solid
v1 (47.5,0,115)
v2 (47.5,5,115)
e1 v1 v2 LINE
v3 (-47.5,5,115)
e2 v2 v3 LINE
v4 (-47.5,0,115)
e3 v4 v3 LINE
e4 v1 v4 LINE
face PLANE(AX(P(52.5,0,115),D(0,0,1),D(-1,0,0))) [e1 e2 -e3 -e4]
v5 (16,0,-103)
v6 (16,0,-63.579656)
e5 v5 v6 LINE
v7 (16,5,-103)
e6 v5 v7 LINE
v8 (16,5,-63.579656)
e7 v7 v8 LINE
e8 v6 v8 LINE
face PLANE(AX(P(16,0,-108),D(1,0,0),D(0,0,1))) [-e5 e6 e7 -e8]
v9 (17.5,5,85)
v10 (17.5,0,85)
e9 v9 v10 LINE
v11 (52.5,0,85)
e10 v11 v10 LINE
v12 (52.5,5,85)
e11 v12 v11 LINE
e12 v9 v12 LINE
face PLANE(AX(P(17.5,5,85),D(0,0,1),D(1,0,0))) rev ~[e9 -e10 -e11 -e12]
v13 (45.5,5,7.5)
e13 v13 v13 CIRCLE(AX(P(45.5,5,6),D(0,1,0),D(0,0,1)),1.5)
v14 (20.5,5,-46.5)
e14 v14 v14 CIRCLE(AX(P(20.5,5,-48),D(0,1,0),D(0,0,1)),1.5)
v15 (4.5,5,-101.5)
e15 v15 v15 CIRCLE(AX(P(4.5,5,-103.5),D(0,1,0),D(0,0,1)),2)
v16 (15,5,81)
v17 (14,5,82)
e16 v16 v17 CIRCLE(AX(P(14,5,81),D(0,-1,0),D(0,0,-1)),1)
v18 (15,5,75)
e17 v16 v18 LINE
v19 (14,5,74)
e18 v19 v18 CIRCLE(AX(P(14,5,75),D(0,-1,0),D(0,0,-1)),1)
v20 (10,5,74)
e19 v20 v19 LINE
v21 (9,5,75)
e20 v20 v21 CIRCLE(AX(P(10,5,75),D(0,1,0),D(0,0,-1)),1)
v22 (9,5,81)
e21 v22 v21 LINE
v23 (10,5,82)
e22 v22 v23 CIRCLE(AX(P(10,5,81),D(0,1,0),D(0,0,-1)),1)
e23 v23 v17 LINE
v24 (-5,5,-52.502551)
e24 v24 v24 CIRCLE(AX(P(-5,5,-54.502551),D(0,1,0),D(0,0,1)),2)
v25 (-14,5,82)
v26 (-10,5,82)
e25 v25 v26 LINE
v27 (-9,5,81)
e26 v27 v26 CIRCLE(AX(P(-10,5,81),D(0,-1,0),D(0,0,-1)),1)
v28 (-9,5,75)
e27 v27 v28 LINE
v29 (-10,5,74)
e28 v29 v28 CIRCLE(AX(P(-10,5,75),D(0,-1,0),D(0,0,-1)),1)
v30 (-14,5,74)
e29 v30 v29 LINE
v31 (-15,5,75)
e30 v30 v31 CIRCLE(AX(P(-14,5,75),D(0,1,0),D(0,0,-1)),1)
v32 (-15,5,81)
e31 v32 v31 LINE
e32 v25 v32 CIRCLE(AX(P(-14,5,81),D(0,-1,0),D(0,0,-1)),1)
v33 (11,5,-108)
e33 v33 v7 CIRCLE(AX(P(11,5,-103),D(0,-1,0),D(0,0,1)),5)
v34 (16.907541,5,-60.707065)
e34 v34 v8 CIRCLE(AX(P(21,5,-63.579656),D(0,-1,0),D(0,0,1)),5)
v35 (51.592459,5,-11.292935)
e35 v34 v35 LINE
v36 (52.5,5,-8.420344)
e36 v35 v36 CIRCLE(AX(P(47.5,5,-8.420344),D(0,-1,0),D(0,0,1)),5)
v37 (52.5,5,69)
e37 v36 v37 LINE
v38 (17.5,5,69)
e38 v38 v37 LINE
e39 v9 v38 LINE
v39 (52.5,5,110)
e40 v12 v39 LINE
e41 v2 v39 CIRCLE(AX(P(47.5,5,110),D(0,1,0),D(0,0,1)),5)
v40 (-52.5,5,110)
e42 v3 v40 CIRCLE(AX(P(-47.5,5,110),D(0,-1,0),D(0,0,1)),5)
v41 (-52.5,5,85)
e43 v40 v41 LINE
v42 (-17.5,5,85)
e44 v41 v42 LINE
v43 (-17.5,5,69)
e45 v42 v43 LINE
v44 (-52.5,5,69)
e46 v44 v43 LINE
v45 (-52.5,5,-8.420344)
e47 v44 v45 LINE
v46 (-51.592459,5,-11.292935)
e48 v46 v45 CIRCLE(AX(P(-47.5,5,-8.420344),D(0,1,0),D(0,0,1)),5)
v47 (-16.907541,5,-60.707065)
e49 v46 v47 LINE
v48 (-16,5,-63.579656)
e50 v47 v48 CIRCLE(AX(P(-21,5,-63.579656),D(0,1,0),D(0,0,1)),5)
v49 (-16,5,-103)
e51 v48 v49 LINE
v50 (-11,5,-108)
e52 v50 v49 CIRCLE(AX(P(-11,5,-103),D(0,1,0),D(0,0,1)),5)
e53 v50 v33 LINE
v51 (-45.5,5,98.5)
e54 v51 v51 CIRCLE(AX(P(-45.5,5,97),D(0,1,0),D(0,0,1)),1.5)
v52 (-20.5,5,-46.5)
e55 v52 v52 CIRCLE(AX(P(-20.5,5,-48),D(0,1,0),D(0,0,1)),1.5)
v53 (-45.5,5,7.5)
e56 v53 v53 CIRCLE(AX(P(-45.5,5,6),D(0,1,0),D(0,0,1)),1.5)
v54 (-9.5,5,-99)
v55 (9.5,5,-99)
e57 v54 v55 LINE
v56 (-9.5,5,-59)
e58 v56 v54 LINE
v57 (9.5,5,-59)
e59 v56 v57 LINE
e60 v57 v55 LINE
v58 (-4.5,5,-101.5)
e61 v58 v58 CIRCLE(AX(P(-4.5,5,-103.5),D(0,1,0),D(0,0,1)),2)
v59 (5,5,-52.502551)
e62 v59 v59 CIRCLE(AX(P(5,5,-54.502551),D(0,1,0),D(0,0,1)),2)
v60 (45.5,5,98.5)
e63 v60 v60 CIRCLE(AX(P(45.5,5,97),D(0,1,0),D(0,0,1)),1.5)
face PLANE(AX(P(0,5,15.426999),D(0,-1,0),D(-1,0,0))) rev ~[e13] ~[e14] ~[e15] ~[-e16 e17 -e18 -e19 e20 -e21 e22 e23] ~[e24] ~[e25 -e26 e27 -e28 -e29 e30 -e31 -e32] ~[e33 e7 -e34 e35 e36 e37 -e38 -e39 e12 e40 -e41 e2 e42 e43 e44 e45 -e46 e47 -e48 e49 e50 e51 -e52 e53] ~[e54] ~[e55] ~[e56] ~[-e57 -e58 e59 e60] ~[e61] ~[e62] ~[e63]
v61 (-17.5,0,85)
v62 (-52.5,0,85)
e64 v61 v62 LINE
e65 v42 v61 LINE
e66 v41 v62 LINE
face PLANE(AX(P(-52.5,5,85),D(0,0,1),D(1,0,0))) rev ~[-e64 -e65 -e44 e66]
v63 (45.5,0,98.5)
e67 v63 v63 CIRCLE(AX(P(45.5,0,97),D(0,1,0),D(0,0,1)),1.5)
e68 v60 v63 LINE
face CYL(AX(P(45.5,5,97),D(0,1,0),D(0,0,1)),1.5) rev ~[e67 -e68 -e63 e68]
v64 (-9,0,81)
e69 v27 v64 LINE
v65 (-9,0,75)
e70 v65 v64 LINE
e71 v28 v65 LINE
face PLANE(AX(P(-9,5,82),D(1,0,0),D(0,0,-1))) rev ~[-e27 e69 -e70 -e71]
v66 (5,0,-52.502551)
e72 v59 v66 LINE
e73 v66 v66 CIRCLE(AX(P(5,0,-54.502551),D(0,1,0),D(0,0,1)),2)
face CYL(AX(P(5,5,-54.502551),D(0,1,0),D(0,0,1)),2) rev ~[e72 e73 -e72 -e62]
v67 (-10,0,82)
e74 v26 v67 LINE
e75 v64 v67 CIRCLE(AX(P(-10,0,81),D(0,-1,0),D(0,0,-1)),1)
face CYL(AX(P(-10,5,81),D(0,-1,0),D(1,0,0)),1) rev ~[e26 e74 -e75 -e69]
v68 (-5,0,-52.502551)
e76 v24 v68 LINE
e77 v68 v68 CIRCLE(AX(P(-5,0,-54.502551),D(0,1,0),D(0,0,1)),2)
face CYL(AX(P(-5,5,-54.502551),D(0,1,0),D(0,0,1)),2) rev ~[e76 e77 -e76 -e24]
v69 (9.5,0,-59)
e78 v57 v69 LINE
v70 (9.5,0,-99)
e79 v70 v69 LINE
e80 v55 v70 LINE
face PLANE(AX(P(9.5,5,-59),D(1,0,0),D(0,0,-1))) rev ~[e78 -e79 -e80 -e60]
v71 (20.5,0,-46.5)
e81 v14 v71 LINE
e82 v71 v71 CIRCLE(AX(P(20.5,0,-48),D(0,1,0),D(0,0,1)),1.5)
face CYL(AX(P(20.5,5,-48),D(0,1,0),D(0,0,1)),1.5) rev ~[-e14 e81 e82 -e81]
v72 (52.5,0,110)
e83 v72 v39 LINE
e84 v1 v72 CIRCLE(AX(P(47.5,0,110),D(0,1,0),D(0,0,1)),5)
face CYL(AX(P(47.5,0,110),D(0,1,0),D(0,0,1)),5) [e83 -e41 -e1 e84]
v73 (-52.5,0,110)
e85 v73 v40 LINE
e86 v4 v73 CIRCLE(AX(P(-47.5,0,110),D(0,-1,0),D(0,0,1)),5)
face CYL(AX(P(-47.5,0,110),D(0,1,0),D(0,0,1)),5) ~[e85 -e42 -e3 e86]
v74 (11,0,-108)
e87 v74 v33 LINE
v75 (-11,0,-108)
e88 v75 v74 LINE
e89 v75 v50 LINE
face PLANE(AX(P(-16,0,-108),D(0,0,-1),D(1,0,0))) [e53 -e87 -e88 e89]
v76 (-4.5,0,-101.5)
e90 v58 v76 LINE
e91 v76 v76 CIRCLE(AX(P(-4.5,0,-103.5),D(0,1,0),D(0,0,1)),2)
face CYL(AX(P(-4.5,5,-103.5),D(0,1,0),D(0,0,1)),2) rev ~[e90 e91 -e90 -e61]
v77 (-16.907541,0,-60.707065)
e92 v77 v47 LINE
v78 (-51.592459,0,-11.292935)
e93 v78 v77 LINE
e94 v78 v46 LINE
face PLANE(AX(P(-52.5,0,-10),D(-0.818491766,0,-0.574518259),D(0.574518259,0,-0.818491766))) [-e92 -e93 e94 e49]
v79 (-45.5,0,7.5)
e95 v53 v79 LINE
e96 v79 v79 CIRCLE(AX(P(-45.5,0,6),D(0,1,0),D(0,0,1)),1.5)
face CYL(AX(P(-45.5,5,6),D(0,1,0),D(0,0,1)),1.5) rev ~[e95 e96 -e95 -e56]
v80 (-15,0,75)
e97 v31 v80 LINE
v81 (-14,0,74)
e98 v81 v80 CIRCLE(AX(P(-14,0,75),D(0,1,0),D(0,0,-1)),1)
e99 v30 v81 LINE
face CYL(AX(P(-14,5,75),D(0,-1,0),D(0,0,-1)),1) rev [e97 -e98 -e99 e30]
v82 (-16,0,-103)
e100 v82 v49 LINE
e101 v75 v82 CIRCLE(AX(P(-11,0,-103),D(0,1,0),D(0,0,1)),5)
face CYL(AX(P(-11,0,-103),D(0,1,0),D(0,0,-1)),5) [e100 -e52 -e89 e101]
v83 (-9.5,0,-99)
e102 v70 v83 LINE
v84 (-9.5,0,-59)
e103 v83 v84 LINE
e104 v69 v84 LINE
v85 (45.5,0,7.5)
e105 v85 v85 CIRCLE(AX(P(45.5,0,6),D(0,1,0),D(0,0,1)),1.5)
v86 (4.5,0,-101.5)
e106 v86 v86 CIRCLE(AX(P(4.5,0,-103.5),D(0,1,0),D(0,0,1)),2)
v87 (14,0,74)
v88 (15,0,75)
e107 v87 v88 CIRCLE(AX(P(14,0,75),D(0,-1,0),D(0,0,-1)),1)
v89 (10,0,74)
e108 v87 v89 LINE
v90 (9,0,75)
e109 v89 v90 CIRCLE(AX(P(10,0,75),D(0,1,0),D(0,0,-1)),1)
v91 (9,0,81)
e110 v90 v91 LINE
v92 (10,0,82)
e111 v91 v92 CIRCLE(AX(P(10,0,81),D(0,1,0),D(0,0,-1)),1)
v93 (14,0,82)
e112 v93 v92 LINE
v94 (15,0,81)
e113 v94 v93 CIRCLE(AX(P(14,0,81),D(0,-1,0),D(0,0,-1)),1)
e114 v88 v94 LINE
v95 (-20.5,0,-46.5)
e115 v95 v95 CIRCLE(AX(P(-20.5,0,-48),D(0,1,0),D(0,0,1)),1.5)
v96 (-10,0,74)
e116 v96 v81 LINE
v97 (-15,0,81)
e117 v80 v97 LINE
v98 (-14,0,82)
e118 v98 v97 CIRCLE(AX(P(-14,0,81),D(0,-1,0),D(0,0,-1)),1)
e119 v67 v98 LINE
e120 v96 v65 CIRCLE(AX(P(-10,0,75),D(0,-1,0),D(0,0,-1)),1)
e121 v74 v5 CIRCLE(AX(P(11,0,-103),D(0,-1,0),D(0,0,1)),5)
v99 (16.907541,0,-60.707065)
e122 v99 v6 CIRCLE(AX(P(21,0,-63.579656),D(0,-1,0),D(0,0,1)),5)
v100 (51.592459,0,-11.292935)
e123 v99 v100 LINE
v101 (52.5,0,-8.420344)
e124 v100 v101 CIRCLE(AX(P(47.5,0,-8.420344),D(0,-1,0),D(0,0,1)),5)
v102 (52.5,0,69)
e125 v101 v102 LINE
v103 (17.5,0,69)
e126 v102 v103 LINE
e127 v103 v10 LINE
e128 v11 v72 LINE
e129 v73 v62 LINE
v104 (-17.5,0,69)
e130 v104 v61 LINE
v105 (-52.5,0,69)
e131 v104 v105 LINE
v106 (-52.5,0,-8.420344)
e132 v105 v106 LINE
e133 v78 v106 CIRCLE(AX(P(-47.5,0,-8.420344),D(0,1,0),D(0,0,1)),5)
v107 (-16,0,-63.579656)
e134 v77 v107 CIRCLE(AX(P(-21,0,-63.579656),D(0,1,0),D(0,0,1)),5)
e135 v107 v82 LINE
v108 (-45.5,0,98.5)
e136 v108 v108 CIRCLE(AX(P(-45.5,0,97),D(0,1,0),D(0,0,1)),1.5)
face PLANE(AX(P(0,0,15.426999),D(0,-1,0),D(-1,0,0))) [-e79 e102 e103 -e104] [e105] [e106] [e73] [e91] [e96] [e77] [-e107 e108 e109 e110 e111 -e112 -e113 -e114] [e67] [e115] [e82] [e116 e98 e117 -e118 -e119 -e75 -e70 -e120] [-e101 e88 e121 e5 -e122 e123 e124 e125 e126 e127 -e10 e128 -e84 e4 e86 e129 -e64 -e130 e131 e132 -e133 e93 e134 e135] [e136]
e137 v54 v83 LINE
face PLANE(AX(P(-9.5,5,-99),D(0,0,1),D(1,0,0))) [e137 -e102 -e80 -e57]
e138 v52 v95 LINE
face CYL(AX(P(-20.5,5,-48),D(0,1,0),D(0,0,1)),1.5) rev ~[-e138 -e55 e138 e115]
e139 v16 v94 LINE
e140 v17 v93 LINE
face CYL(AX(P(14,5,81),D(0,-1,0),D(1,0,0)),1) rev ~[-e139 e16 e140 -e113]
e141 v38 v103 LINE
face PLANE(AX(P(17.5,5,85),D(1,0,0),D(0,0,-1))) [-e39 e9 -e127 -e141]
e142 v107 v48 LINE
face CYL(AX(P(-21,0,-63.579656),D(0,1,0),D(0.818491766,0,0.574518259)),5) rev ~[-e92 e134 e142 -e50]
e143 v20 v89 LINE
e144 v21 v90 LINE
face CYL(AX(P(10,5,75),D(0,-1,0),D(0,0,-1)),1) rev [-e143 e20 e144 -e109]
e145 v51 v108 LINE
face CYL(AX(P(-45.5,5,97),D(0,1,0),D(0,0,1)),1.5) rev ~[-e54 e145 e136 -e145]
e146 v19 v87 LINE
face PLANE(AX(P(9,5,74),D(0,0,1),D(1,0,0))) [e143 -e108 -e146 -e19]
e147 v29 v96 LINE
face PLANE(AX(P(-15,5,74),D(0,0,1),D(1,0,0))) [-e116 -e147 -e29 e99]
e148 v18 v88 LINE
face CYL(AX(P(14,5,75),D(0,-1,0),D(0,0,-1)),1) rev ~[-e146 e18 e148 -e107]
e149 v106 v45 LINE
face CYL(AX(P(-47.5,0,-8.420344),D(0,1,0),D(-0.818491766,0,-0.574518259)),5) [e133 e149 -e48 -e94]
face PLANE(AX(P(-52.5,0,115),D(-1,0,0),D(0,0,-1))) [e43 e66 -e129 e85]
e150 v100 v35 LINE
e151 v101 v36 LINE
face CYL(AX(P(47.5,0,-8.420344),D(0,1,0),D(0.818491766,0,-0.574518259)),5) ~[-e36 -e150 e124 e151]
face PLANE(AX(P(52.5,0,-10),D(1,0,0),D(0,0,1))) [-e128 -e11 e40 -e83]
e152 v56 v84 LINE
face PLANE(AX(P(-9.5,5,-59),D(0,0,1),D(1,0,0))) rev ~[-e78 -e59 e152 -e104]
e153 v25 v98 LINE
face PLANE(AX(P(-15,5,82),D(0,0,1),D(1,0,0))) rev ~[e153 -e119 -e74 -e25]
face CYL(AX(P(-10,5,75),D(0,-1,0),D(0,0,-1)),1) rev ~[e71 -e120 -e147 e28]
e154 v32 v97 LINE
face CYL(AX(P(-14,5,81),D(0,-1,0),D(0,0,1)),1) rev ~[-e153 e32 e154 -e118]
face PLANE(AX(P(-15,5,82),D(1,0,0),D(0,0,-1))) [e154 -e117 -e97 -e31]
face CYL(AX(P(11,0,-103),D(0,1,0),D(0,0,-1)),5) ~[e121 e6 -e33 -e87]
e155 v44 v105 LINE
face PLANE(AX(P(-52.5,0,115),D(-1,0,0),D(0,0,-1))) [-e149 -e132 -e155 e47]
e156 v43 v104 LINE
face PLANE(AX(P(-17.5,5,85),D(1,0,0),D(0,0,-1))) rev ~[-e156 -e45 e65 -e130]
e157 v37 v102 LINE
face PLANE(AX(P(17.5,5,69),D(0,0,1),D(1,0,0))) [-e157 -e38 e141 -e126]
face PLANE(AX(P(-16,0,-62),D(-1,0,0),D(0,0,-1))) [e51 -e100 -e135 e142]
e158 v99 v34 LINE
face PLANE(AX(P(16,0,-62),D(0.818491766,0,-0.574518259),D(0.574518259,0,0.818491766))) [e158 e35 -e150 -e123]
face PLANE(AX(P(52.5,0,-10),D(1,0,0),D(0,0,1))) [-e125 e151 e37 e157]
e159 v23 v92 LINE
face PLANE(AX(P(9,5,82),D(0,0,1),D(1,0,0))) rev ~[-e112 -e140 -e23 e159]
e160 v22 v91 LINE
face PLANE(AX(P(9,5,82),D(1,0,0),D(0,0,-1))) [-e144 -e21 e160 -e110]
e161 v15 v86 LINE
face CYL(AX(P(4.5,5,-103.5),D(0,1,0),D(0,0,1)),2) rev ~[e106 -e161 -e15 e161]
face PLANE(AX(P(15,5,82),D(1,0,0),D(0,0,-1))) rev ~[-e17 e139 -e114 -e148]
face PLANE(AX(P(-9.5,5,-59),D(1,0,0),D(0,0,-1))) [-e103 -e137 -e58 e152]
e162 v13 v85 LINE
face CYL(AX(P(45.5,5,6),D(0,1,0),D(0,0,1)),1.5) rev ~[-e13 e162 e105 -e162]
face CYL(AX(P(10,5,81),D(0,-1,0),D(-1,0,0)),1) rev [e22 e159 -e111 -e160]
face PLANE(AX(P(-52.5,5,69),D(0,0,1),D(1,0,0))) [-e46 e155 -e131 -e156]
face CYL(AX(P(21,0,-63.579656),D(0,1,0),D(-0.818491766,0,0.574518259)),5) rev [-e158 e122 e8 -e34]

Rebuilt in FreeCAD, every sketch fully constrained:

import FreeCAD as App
import Part
import Sketcher

V = App.Vector
Q = App.Units.Quantity


def edges_at(feature, points):
    """Names of the edges that pass closest to the given points."""
    edges = feature.Shape.Edges
    near = lambda p: min(range(len(edges)), key=lambda i: edges[i].distToShape(Part.Vertex(*p))[0])
    return sorted({f"Edge{near(p) + 1}" for p in points})


def add_polygon(sketch, points):
    """Adds a closed chain of lines whose ends are joined by coincident constraints."""
    first, n = sketch.GeometryCount, len(points)
    for a, b in zip(points, points[1:] + points[:1]):
        sketch.addGeometry(Part.LineSegment(App.Vector(*a, 0), App.Vector(*b, 0)), False)
    for i in range(n):
        sketch.addConstraint(Sketcher.Constraint("Coincident", first + i, 2, first + (i + 1) % n, 1))

doc = App.newDocument("Part")
body = doc.addObject("PartDesign::Body", "Body")

sketch1 = body.newObject("Sketcher::SketchObject", "Sketch")
sketch1.AttachmentSupport = (doc.getObject("XZ_Plane"), [""])
sketch1.MapMode = "FlatFace"
add_polygon(sketch1, [(16, -108), (-16, -108), (-16, -62), (-52, -10), (-52, 115), (52, 115), (52, -10), (16, -62)])
sketch1.addConstraint([
    Sketcher.Constraint("Horizontal", 0),
    Sketcher.Constraint("Vertical", 1),
    Sketcher.Constraint("Vertical", 3),
    Sketcher.Constraint("Horizontal", 4),
    Sketcher.Constraint("Vertical", 5),
    Sketcher.Constraint("Vertical", 7),
    Sketcher.Constraint("Symmetric", 2, 2, 5, 2, -2),
    Sketcher.Constraint("Symmetric", 1, 2, 6, 2, -2),
    Sketcher.Constraint("DistanceX", 0, 2, 0, 1, Q("32 mm")),
    Sketcher.Constraint("DistanceX", 4, 1, 4, 2, Q("105 mm")),
    Sketcher.Constraint("DistanceY", 1, 1, 1, 2, Q("46 mm")),
    Sketcher.Constraint("DistanceY", 3, 1, 3, 2, Q("125 mm")),
    Sketcher.Constraint("DistanceY", 0, 2, -1, 1, Q("108 mm")),
    Sketcher.Constraint("DistanceY", 2, 2, -1, 1, Q("10 mm")),
])
pad1 = body.newObject("PartDesign::Pad", "Pad")
pad1.Profile = sketch1
pad1.Length = 5
pad1.Reversed = True

sketch2 = body.newObject("Sketcher::SketchObject", "Sketch001")
sketch2.AttachmentSupport = (doc.getObject("XZ_Plane"), [""])
sketch2.MapMode = "FlatFace"
sketch2.AttachmentOffset = App.Placement(V(0, 0, -5), App.Rotation())
sketch2.addGeometry(Part.Circle(V(-4.5, -103.5, 0), V(0, 0, 1), 2), False)
sketch2.addGeometry(Part.Circle(V(4.5, -103.5, 0), V(0, 0, 1), 2), False)
sketch2.addGeometry(Part.Circle(V(-5, -54.5, 0), V(0, 0, 1), 2), False)
sketch2.addGeometry(Part.Circle(V(5, -54.5, 0), V(0, 0, 1), 2), False)
sketch2.addGeometry(Part.Circle(V(-20.5, -48, 0), V(0, 0, 1), 1.5), False)
sketch2.addGeometry(Part.Circle(V(20.5, -48, 0), V(0, 0, 1), 1.5), False)
sketch2.addGeometry(Part.Circle(V(45.5, 6, 0), V(0, 0, 1), 1.5), False)
sketch2.addGeometry(Part.Circle(V(-45.5, 6, 0), V(0, 0, 1), 1.5), False)
sketch2.addGeometry(Part.Circle(V(45.5, 97, 0), V(0, 0, 1), 1.5), False)
sketch2.addGeometry(Part.Circle(V(-45.5, 97, 0), V(0, 0, 1), 1.5), False)
add_polygon(sketch2, [(-9.5, -99), (-9.5, -59), (9.5, -59), (9.5, -99)])
add_polygon(sketch2, [(-52.5, 69), (-52.5, 85), (-17.5, 85), (-17.5, 69)])
add_polygon(sketch2, [(17.5, 69), (17.5, 85), (52.5, 85), (52.5, 69)])
add_polygon(sketch2, [(-15, 74), (-15, 82), (-9, 82), (-9, 74)])
add_polygon(sketch2, [(9, 74), (9, 82), (15, 82), (15, 74)])
sketch2.addConstraint([
    Sketcher.Constraint("Vertical", 10),
    Sketcher.Constraint("Horizontal", 11),
    Sketcher.Constraint("Vertical", 12),
    Sketcher.Constraint("Horizontal", 13),
    Sketcher.Constraint("Vertical", 14),
    Sketcher.Constraint("Horizontal", 15),
    Sketcher.Constraint("Vertical", 16),
    Sketcher.Constraint("Horizontal", 17),
    Sketcher.Constraint("Vertical", 18),
    Sketcher.Constraint("Horizontal", 19),
    Sketcher.Constraint("Vertical", 20),
    Sketcher.Constraint("Horizontal", 21),
    Sketcher.Constraint("Vertical", 22),
    Sketcher.Constraint("Horizontal", 23),
    Sketcher.Constraint("Vertical", 24),
    Sketcher.Constraint("Horizontal", 25),
    Sketcher.Constraint("Vertical", 26),
    Sketcher.Constraint("Horizontal", 27),
    Sketcher.Constraint("Vertical", 28),
    Sketcher.Constraint("Horizontal", 29),
    Sketcher.Constraint("Equal", 0, 1),
    Sketcher.Constraint("Equal", 1, 2),
    Sketcher.Constraint("Equal", 2, 3),
    Sketcher.Constraint("Equal", 4, 5),
    Sketcher.Constraint("Equal", 5, 6),
    Sketcher.Constraint("Equal", 6, 7),
    Sketcher.Constraint("Equal", 7, 8),
    Sketcher.Constraint("Equal", 8, 9),
    Sketcher.Constraint("Symmetric", 0, 3, 1, 3, -2),
    Sketcher.Constraint("Symmetric", 2, 3, 3, 3, -2),
    Sketcher.Constraint("Symmetric", 4, 3, 5, 3, -2),
    Sketcher.Constraint("Symmetric", 6, 3, 7, 3, -2),
    Sketcher.Constraint("Symmetric", 8, 3, 9, 3, -2),
    Sketcher.Constraint("Symmetric", 15, 2, 18, 2, -2),
    Sketcher.Constraint("Symmetric", 17, 2, 20, 2, -2),
    Sketcher.Constraint("Symmetric", 23, 2, 26, 2, -2),
    Sketcher.Constraint("Symmetric", 25, 2, 28, 2, -2),
    Sketcher.Constraint("Vertical", 6, 3, 8, 3),
    Sketcher.Constraint("Diameter", 0, Q("4 mm")),
    Sketcher.Constraint("Diameter", 4, Q("3 mm")),
    Sketcher.Constraint("DistanceX", 11, 1, 11, 2, Q("19 mm")),
    Sketcher.Constraint("DistanceX", 15, 1, 15, 2, Q("35 mm")),
    Sketcher.Constraint("DistanceX", 23, 1, 23, 2, Q("6 mm")),
    Sketcher.Constraint("DistanceY", 10, 1, 10, 2, Q("40 mm")),
    Sketcher.Constraint("DistanceY", 14, 1, 14, 2, Q("16 mm")),
    Sketcher.Constraint("DistanceY", 22, 1, 22, 2, Q("8 mm")),
    Sketcher.Constraint("DistanceX", 2, 3, -1, 1, Q("5 mm")),
    Sketcher.Constraint("DistanceY", 4, 3, -1, 1, Q("48 mm")),
    Sketcher.Constraint("DistanceY", -1, 1, 6, 3, Q("6 mm")),
    Sketcher.Constraint("DistanceY", -1, 1, 8, 3, Q("97 mm")),
    Sketcher.Constraint("DistanceY", 10, 2, -1, 1, Q("59 mm")),
    Sketcher.Constraint("DistanceY", -1, 1, 14, 2, Q("85 mm")),
    Sketcher.Constraint("DistanceX", 22, 2, -1, 1, Q("15 mm")),
    Sketcher.Constraint("DistanceY", -1, 1, 22, 2, Q("82 mm")),
    Sketcher.Constraint("DistanceX", 0, 3, 1, 3, Q("9 mm")),
    Sketcher.Constraint("DistanceX", 4, 3, 0, 3, Q("16 mm")),
    Sketcher.Constraint("DistanceX", 5, 3, 6, 3, Q("25 mm")),
    Sketcher.Constraint("DistanceX", 4, 3, 10, 2, Q("11 mm")),
    Sketcher.Constraint("DistanceX", 14, 2, 9, 3, Q("7 mm")),
    Sketcher.Constraint("DistanceY", 0, 3, -1, 1, Q("103.5 mm")),
    Sketcher.Constraint("DistanceY", 2, 3, -1, 1, Q("54.502551 mm")),
])
pocket1 = body.newObject("PartDesign::Pocket", "Pocket")
pocket1.Profile = sketch2
pocket1.Length = 7
pocket1.Reversed = True
doc.recompute()

fillet = body.newObject("PartDesign::Fillet", "Fillet")
fillet.Base = (pocket1, edges_at(pocket1, [(16, 2.5, -108)]))
fillet.Radius = 5
doc.recompute()

fillet2 = body.newObject("PartDesign::Fillet", "Fillet001")
fillet2.Base = (fillet, edges_at(fillet, [(-16, 2.5, -108)]))
fillet2.Radius = 5
doc.recompute()

fillet3 = body.newObject("PartDesign::Fillet", "Fillet002")
fillet3.Base = (fillet2, edges_at(fillet2, [(52.5, 2.5, -10)]))
fillet3.Radius = 5
doc.recompute()

fillet4 = body.newObject("PartDesign::Fillet", "Fillet003")
fillet4.Base = (fillet3, edges_at(fillet3, [(-52.5, 2.5, -10)]))
fillet4.Radius = 5
doc.recompute()

fillet5 = body.newObject("PartDesign::Fillet", "Fillet004")
fillet5.Base = (fillet4, edges_at(fillet4, [(52.5, 2.5, 115)]))
fillet5.Radius = 5
doc.recompute()

fillet6 = body.newObject("PartDesign::Fillet", "Fillet005")
fillet6.Base = (fillet5, edges_at(fillet5, [(-52.5, 2.5, 115)]))
fillet6.Radius = 5
doc.recompute()

fillet7 = body.newObject("PartDesign::Fillet", "Fillet006")
fillet7.Base = (fillet6, edges_at(fillet6, [(15, 2.5, 74)]))
fillet7.Radius = 1
doc.recompute()

fillet8 = body.newObject("PartDesign::Fillet", "Fillet007")
fillet8.Base = (fillet7, edges_at(fillet7, [
    (-15, 2.5, 82),
    (-15, 2.5, 74),
    (-9, 2.5, 74),
    (-9, 2.5, 82),
    (9, 2.5, 74),
    (15, 2.5, 82),
    (9, 2.5, 82),
]))
fillet8.Radius = 1
doc.recompute()

fillet9 = body.newObject("PartDesign::Fillet", "Fillet008")
fillet9.Base = (fillet8, edges_at(fillet8, [(16, 2.5, -62), (-16, 2.5, -62)]))
fillet9.Radius = 5

doc.recompute()
